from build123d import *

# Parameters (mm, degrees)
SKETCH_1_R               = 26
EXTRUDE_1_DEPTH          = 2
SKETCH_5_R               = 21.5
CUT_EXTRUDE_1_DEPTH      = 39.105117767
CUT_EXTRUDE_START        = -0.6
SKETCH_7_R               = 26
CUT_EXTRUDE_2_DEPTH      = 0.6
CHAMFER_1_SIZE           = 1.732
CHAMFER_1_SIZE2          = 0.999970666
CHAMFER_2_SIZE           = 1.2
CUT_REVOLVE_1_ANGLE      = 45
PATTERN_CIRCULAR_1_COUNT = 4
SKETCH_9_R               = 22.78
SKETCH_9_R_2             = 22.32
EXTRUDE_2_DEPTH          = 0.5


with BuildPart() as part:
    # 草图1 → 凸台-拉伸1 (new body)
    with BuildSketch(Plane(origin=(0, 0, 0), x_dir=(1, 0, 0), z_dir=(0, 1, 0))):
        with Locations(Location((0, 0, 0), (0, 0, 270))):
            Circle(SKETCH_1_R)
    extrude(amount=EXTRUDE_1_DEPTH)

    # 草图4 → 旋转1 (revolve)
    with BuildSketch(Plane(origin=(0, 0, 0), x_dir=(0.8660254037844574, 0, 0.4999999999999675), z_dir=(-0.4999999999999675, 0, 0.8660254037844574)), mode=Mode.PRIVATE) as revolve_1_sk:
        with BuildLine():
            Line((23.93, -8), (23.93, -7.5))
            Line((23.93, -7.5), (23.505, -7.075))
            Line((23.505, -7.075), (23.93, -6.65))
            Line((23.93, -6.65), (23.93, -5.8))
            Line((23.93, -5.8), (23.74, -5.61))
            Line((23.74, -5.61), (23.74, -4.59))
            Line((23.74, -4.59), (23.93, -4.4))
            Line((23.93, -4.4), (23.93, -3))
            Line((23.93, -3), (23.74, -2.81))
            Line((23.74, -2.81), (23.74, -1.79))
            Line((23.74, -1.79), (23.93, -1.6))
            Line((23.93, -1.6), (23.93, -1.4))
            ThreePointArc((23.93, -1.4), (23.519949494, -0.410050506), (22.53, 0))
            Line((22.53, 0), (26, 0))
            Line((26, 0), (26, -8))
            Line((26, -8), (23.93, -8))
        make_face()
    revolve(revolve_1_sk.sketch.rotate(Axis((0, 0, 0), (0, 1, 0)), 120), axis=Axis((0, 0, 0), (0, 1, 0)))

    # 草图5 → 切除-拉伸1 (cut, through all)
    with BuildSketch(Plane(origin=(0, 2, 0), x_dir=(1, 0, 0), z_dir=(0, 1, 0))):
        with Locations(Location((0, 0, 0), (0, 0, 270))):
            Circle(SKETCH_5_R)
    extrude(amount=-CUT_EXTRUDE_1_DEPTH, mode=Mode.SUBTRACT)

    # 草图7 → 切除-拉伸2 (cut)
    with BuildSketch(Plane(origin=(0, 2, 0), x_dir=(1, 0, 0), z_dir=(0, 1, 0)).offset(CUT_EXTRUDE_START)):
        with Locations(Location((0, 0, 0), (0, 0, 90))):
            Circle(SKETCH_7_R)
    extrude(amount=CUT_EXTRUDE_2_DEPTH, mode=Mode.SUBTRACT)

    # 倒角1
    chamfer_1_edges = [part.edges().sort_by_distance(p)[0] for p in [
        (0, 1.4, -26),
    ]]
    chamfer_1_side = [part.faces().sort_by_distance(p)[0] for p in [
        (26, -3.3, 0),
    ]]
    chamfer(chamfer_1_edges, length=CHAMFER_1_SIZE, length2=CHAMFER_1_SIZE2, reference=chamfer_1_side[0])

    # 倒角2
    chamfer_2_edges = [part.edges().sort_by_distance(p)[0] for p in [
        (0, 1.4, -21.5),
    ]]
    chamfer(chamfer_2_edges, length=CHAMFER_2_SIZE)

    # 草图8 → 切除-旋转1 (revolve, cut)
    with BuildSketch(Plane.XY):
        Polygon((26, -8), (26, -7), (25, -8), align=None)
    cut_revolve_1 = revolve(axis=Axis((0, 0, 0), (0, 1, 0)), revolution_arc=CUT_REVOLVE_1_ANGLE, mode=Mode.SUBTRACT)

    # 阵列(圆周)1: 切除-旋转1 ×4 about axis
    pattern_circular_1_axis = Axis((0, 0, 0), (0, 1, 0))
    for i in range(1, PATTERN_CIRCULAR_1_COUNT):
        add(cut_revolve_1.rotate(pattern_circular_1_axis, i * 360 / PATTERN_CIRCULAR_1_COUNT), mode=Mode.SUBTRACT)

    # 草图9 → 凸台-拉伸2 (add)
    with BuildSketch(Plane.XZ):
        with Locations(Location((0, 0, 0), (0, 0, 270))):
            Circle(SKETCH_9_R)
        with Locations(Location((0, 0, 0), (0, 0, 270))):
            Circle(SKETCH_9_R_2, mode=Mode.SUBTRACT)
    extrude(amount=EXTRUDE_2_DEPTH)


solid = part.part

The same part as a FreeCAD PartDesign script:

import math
import FreeCAD as App
import Part
import Sketcher
from FreeCAD import Vector


def edges_at(feature, points):
    """Names of the edges that pass closest to the given points."""
    edges = feature.Shape.Edges
    near = lambda p: min(range(len(edges)), key=lambda i: edges[i].distToShape(Part.Vertex(*p))[0])
    return sorted({f"Edge{near(p) + 1}" for p in points})

doc = App.newDocument("Part")
body = doc.addObject("PartDesign::Body", "Body")

sketch1 = body.newObject("Sketcher::SketchObject", "Sketch")
sketch1.AttachmentSupport = (doc.getObject("XZ_Plane"), [""])
sketch1.MapMode = "FlatFace"
sketch1.addGeometry(Part.Circle(Vector(0, 0, 0), Vector(0, 0, 1), 26), False)
sketch1.addConstraint([
    Sketcher.Constraint("Coincident", 0, 3, -1, 1),
    Sketcher.Constraint("Diameter", 0, 52.0),
])
pad1 = body.newObject("PartDesign::Pad", "Pad")
pad1.Profile = sketch1
pad1.Length = 2
pad1.Reversed = True

sketch2 = body.newObject("Sketcher::SketchObject", "Sketch001")
sketch2.Placement = App.Placement(Vector(0, 0, 0), App.Rotation(Vector(0.866025404, 0, 0.5), Vector(0, 1, 0), Vector(-0.5, 0, 0.866025404), "ZXY"))
sketch2.addGeometry([
    Part.LineSegment(Vector(23.93, -7.5, 0), Vector(23.93, -8, 0)),
    Part.LineSegment(Vector(23.93, -8, 0), Vector(26, -8, 0)),
    Part.LineSegment(Vector(26, -8, 0), Vector(26, 0, 0)),
    Part.LineSegment(Vector(26, 0, 0), Vector(22.53, 0, 0)),
    Part.ArcOfCircle(Part.Circle(Vector(22.53, -1.4, 0), Vector(0, 0, 1), 1.4), math.radians(0), math.radians(90)),
    Part.LineSegment(Vector(23.93, -1.4, 0), Vector(23.93, -1.6, 0)),
    Part.LineSegment(Vector(23.93, -1.6, 0), Vector(23.74, -1.79, 0)),
    Part.LineSegment(Vector(23.74, -1.79, 0), Vector(23.74, -2.81, 0)),
    Part.LineSegment(Vector(23.74, -2.81, 0), Vector(23.93, -3, 0)),
    Part.LineSegment(Vector(23.93, -3, 0), Vector(23.93, -4.4, 0)),
    Part.LineSegment(Vector(23.93, -4.4, 0), Vector(23.74, -4.59, 0)),
    Part.LineSegment(Vector(23.74, -4.59, 0), Vector(23.74, -5.61, 0)),
    Part.LineSegment(Vector(23.74, -5.61, 0), Vector(23.93, -5.8, 0)),
    Part.LineSegment(Vector(23.93, -5.8, 0), Vector(23.93, -6.65, 0)),
    Part.LineSegment(Vector(23.93, -6.65, 0), Vector(23.51, -7.08, 0)),
    Part.LineSegment(Vector(23.51, -7.08, 0), Vector(23.93, -7.5, 0)),
], False)
sketch2.addConstraint([
    Sketcher.Constraint("Coincident", 0, 2, 1, 1),
    Sketcher.Constraint("Coincident", 1, 2, 2, 1),
    Sketcher.Constraint("Coincident", 2, 2, 3, 1),
    Sketcher.Constraint("Tangent", 3, 2, 4, 2),
    Sketcher.Constraint("Tangent", 4, 1, 5, 1),
    Sketcher.Constraint("Coincident", 5, 2, 6, 1),
    Sketcher.Constraint("Coincident", 6, 2, 7, 1),
    Sketcher.Constraint("Coincident", 7, 2, 8, 1),
    Sketcher.Constraint("Coincident", 8, 2, 9, 1),
    Sketcher.Constraint("Coincident", 9, 2, 10, 1),
    Sketcher.Constraint("Coincident", 10, 2, 11, 1),
    Sketcher.Constraint("Coincident", 11, 2, 12, 1),
    Sketcher.Constraint("Coincident", 12, 2, 13, 1),
    Sketcher.Constraint("Coincident", 13, 2, 14, 1),
    Sketcher.Constraint("Coincident", 14, 2, 15, 1),
    Sketcher.Constraint("Coincident", 15, 2, 0, 1),
    Sketcher.Constraint("Vertical", 0),
    Sketcher.Constraint("Horizontal", 1),
    Sketcher.Constraint("Vertical", 2),
    Sketcher.Constraint("Horizontal", 3),
    Sketcher.Constraint("Vertical", 5),
    Sketcher.Constraint("Vertical", 7),
    Sketcher.Constraint("Vertical", 9),
    Sketcher.Constraint("Vertical", 11),
    Sketcher.Constraint("Vertical", 13),
    Sketcher.Constraint("PointOnObject", 2, 2, -1),
    Sketcher.Constraint("Perpendicular", 6, 8),
    Sketcher.Constraint("Perpendicular", 8, 10),
    Sketcher.Constraint("Perpendicular", 10, 12),
    Sketcher.Constraint("Perpendicular", 12, 14),
    Sketcher.Constraint("Perpendicular", 14, 15),
    Sketcher.Constraint("Vertical", 0, 2, 4, 1),
    Sketcher.Constraint("Vertical", 5, 2, 8, 2),
    Sketcher.Constraint("Vertical", 7, 2, 10, 2),
    Sketcher.Constraint("Vertical", 9, 2, 12, 2),
    Sketcher.Constraint("Equal", 7, 11),
    Sketcher.Constraint("Equal", 6, 8),
    Sketcher.Constraint("Radius", 4, 1.4),
    Sketcher.Constraint("DistanceY", 2, 1, 2, 2, 8.0),
    Sketcher.Constraint("DistanceY", 0, 2, 0, 1, 0.5),
    Sketcher.Constraint("DistanceY", 5, 2, 5, 1, 0.2),
    Sketcher.Constraint("DistanceY", 9, 2, 9, 1, 1.4),
    Sketcher.Constraint("DistanceX", -1, 1, 1, 2, 26.0),
    Sketcher.Constraint("DistanceY", 8, 2, -1, 1, 3.0),
    Sketcher.Constraint("DistanceX", 1, 1, 1, 2, 2.07),
    Sketcher.Constraint("DistanceY", 7, 2, 7, 1, 1.02),
    Sketcher.Constraint("DistanceY", 13, 2, 13, 1, 0.85),
])
revolution = body.newObject("PartDesign::Revolution", "Revolution")
revolution.Profile = sketch2
revolution.ReferenceAxis = (sketch2, ["V_Axis"])
revolution.Angle = 360

sketch3 = body.newObject("Sketcher::SketchObject", "Sketch002")
sketch3.AttachmentSupport = (doc.getObject("XZ_Plane"), [""])
sketch3.MapMode = "FlatFace"
sketch3.AttachmentOffset = App.Placement(Vector(0, 0, -2), App.Rotation())
sketch3.addGeometry(Part.Circle(Vector(0, 0, 0), Vector(0, 0, 1), 22), False)
sketch3.addConstraint([
    Sketcher.Constraint("Coincident", 0, 3, -1, 1),
    Sketcher.Constraint("Diameter", 0, 43.0),
])
pocket1 = body.newObject("PartDesign::Pocket", "Pocket")
pocket1.Profile = sketch3
pocket1.Type = "ThroughAll"
pocket1.Reversed = True

sketch4 = body.newObject("Sketcher::SketchObject", "Sketch003")
sketch4.AttachmentSupport = (doc.getObject("XZ_Plane"), [""])
sketch4.MapMode = "FlatFace"
sketch4.AttachmentOffset = App.Placement(Vector(0, 0, -1.4), App.Rotation())
sketch4.addGeometry(Part.Circle(Vector(0, 0, 0), Vector(0, 0, 1), 26), False)
sketch4.addConstraint([
    Sketcher.Constraint("Coincident", 0, 3, -1, 1),
    Sketcher.Constraint("Diameter", 0, 52.0),
])
pocket2 = body.newObject("PartDesign::Pocket", "Pocket001")
pocket2.Profile = sketch4
pocket2.Length = 0.6
doc.recompute()

chamfer = body.newObject("PartDesign::Chamfer", "Chamfer")
chamfer.Base = (pocket2, edges_at(pocket2, [(0, 1.4, -26)]))
chamfer.ChamferType = "Two distances"
chamfer.Size = 1.732
chamfer.Size2 = 0.999971
doc.recompute()

chamfer2 = body.newObject("PartDesign::Chamfer", "Chamfer001")
chamfer2.Base = (chamfer, edges_at(chamfer, [(0, 1.4, -21.5)]))
chamfer2.Size = 1.2

sketch5 = body.newObject("Sketcher::SketchObject", "Sketch004")
sketch5.AttachmentSupport = (doc.getObject("XY_Plane"), [""])
sketch5.MapMode = "FlatFace"
sketch5.addGeometry([
    Part.LineSegment(Vector(26, -8, 0), Vector(26, -7, 0)),
    Part.LineSegment(Vector(26, -7, 0), Vector(25, -8, 0)),
    Part.LineSegment(Vector(25, -8, 0), Vector(26, -8, 0)),
], False)
sketch5.addConstraint([
    Sketcher.Constraint("Coincident", 0, 2, 1, 1),
    Sketcher.Constraint("Coincident", 1, 2, 2, 1),
    Sketcher.Constraint("Coincident", 2, 2, 0, 1),
    Sketcher.Constraint("Vertical", 0),
    Sketcher.Constraint("Horizontal", 2),
    Sketcher.Constraint("Equal", 2, 0),
    Sketcher.Constraint("DistanceX", 2, 1, 2, 2, 1.0),
    Sketcher.Constraint("DistanceX", -1, 1, 0, 2, 26.0),
    Sketcher.Constraint("DistanceY", 0, 2, -1, 1, 7.0),
])
groove = body.newObject("PartDesign::Groove", "Groove")
groove.Profile = sketch5
groove.ReferenceAxis = (sketch5, ["V_Axis"])
groove.Angle = 45
doc.recompute()

polarpattern = body.newObject("PartDesign::PolarPattern", "PolarPattern")
polarpattern.Originals = [groove]
polarpattern.Axis = (doc.getObject("Y_Axis"), [""])
polarpattern.Angle = 360
polarpattern.Occurrences = 4
body.Tip = polarpattern

sketch6 = body.newObject("Sketcher::SketchObject", "Sketch005")
sketch6.AttachmentSupport = (doc.getObject("XZ_Plane"), [""])
sketch6.MapMode = "FlatFace"
sketch6.addGeometry([
    Part.Circle(Vector(0, 0, 0), Vector(0, 0, 1), 23),
    Part.Circle(Vector(0, 0, 0), Vector(0, 0, 1), 22),
], False)
sketch6.addConstraint([
    Sketcher.Constraint("Coincident", 0, 3, -1, 1),
    Sketcher.Constraint("Coincident", 1, 3, -1, 1),
    Sketcher.Constraint("Diameter", 0, 45.56),
    Sketcher.Constraint("Diameter", 1, 44.64),
])
pad2 = body.newObject("PartDesign::Pad", "Pad001")
pad2.Profile = sketch6
pad2.Length = 0.5

doc.recompute()
